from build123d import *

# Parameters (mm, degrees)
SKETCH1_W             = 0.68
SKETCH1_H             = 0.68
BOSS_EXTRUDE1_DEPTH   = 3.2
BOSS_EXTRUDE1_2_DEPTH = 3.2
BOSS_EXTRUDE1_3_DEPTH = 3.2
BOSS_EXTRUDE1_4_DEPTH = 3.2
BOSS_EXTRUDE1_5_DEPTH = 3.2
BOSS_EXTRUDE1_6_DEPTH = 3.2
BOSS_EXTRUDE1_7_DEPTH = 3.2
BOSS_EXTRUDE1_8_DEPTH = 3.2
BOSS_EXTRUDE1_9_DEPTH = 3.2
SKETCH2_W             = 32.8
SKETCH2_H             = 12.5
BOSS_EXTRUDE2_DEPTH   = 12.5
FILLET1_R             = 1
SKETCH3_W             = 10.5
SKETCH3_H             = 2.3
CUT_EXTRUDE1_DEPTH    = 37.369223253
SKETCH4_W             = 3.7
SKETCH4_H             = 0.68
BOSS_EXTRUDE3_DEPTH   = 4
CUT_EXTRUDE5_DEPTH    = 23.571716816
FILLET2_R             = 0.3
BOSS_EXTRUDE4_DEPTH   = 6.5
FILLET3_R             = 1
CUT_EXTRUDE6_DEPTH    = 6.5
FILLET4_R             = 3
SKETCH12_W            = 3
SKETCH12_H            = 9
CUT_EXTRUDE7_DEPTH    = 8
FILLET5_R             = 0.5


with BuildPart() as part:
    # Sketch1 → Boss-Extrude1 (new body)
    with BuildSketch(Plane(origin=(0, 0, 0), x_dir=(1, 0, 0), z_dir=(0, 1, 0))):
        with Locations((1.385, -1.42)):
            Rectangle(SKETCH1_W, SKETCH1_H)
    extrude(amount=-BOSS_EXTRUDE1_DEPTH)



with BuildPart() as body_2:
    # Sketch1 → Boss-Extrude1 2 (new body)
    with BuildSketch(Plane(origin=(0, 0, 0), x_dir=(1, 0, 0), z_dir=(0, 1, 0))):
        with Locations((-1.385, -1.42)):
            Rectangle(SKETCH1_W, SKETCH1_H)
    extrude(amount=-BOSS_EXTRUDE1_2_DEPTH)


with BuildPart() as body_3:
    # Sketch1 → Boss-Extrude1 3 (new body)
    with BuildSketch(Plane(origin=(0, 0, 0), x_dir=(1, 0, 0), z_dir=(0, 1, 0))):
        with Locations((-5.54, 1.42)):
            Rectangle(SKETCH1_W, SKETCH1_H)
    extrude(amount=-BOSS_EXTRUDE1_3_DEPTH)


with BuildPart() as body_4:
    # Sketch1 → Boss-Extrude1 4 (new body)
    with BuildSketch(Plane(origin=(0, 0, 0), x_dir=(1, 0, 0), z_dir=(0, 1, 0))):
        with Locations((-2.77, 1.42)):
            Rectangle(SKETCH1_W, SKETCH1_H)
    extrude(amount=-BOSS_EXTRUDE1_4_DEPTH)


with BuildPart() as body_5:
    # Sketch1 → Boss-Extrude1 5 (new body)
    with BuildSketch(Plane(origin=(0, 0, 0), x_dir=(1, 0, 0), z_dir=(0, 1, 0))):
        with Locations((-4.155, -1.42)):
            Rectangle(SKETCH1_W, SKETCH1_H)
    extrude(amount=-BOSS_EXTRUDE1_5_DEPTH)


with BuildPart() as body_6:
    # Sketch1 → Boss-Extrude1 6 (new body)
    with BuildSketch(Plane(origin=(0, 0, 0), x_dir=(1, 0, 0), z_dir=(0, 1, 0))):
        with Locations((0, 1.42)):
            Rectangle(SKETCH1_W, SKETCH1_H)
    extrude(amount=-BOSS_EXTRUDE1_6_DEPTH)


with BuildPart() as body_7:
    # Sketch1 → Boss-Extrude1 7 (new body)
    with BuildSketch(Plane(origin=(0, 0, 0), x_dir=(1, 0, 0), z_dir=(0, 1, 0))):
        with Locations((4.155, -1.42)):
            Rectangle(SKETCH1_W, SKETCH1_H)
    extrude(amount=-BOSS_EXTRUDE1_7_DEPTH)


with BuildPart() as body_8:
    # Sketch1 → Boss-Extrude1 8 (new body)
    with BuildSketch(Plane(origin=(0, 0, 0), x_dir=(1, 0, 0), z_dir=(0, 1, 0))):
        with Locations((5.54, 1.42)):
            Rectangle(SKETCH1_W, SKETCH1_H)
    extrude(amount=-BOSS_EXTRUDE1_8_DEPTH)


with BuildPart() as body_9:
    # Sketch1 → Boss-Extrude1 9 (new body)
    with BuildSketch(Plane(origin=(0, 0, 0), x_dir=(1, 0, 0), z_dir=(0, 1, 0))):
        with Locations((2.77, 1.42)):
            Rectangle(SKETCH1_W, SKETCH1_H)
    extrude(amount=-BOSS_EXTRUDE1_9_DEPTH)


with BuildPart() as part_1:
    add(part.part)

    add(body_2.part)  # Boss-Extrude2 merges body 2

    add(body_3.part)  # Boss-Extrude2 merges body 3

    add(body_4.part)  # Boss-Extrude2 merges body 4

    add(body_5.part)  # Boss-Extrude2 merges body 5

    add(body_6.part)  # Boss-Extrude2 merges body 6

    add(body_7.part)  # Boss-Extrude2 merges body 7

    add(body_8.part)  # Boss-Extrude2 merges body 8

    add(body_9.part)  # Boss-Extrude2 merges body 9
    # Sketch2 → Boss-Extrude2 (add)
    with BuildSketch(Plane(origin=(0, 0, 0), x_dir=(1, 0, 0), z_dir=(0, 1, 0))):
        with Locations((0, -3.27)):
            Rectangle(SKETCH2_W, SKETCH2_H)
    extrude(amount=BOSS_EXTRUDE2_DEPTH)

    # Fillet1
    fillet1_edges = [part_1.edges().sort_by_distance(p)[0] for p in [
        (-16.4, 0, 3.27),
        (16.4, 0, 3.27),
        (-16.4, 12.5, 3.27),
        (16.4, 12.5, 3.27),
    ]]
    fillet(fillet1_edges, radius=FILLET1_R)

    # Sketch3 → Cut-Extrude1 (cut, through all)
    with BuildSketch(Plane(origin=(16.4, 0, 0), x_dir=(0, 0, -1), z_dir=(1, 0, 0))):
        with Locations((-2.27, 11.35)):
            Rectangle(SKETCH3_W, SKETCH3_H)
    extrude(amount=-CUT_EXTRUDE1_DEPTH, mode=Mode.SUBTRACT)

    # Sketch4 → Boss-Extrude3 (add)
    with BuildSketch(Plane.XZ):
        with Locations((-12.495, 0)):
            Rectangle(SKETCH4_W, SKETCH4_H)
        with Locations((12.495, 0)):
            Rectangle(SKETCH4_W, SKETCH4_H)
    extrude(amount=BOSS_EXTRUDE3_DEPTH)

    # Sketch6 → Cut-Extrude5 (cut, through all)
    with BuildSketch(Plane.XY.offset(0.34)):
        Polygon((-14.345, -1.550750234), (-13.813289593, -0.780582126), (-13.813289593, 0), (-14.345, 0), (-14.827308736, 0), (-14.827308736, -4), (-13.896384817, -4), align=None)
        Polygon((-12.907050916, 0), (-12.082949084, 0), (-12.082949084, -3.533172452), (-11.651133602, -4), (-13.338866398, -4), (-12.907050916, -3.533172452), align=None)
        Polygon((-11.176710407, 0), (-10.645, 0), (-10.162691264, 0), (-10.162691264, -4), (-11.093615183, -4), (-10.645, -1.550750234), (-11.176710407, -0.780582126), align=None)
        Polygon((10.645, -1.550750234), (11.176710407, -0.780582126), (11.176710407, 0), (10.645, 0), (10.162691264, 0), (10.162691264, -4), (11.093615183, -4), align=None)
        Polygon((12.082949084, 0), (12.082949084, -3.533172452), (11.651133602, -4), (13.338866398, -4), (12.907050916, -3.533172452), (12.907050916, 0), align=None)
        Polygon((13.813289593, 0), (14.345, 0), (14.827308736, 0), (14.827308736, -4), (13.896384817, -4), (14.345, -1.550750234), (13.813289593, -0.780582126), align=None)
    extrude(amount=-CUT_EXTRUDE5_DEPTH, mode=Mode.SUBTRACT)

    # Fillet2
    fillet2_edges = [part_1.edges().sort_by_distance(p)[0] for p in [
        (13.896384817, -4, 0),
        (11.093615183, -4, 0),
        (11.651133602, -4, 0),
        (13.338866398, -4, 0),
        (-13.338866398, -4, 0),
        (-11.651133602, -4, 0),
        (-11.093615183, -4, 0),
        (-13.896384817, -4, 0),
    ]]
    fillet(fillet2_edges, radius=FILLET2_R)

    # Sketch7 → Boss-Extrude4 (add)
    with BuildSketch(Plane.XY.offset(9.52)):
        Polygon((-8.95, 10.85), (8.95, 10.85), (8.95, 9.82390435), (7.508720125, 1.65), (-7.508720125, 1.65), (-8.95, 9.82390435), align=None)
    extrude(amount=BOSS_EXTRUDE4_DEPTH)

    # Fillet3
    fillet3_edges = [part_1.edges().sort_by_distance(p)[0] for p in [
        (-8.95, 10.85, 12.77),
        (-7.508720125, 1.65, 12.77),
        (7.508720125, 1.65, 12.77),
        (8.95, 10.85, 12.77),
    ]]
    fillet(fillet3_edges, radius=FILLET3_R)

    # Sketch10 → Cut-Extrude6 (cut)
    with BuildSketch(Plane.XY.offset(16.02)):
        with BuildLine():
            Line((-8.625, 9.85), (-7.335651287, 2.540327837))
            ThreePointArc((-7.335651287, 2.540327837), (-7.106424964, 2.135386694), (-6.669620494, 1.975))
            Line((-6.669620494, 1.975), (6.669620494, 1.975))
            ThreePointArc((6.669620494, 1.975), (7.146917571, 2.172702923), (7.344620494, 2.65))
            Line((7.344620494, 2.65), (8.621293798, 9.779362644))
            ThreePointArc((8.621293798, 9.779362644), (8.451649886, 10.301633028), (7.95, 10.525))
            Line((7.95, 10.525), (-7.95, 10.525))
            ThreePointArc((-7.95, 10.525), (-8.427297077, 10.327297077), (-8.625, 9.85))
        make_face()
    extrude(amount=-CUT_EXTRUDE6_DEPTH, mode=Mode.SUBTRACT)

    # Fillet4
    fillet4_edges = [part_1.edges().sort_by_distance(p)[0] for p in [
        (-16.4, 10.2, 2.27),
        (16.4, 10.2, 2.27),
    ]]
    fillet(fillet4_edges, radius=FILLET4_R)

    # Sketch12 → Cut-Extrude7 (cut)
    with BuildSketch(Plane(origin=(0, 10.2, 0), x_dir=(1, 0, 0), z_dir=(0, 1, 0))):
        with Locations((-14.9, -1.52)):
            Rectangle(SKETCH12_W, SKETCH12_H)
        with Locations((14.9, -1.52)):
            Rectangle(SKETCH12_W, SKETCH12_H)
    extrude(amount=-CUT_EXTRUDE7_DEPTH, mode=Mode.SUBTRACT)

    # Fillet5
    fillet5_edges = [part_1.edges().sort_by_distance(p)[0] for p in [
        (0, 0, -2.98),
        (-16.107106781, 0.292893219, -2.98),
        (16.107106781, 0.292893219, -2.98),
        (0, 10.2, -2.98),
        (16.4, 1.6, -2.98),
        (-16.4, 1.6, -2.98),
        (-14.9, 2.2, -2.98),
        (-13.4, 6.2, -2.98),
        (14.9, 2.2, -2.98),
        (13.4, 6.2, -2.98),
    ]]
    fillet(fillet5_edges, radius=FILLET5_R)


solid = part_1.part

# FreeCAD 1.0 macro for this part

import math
import FreeCAD as App
import Part
import Sketcher
from FreeCAD import Vector
Q = App.Units.Quantity


def edges_at(feature, points):
    """Names of the edges that pass closest to the given points."""
    edges = feature.Shape.Edges
    near = lambda p: min(range(len(edges)), key=lambda i: edges[i].distToShape(Part.Vertex(*p))[0])
    return sorted({f"Edge{near(p) + 1}" for p in points})

doc = App.newDocument("Part")
body = doc.addObject("PartDesign::Body", "Body")

# Sketch on XZ plane
sketch1 = body.newObject("Sketcher::SketchObject", "Sketch")
sketch1.AttachmentSupport = (doc.getObject("XZ_Plane"), [""])
sketch1.MapMode = "FlatFace"
sketch1.addGeometry(Part.LineSegment(Vector(1, 1.1, 0), Vector(1, 1.8, 0)), False)
sketch1.addGeometry(Part.LineSegment(Vector(1, 1.8, 0), Vector(1.7, 1.8, 0)), False)
sketch1.addGeometry(Part.LineSegment(Vector(1.7, 1.8, 0), Vector(1.7, 1.1, 0)), False)
sketch1.addGeometry(Part.LineSegment(Vector(1.7, 1.1, 0), Vector(1, 1.1, 0)), False)
sketch1.addConstraint(Sketcher.Constraint("Coincident", 0, 2, 1, 1))
sketch1.addConstraint(Sketcher.Constraint("Coincident", 1, 2, 2, 1))
sketch1.addConstraint(Sketcher.Constraint("Coincident", 2, 2, 3, 1))
sketch1.addConstraint(Sketcher.Constraint("Coincident", 3, 2, 0, 1))
sketch1.addConstraint(Sketcher.Constraint("Vertical", 0))
sketch1.addConstraint(Sketcher.Constraint("Horizontal", 1))
sketch1.addConstraint(Sketcher.Constraint("Vertical", 2))
sketch1.addConstraint(Sketcher.Constraint("Horizontal", 3))
sketch1.addConstraint(Sketcher.Constraint("Equal", 3, 0))
sketch1.addConstraint(Sketcher.Constraint("DistanceX", 1, 1, 1, 2, Q("0.68 mm")))
sketch1.addConstraint(Sketcher.Constraint("DistanceY", -1, 1, 0, 2, Q("1.76 mm")))
sketch1.addConstraint(Sketcher.Constraint("DistanceX", -1, 1, 0, 2, Q("1.045 mm")))
pad1 = body.newObject("PartDesign::Pad", "Pad")
pad1.Profile = sketch1
pad1.Length = 3.2
body2 = doc.addObject("PartDesign::Body", "Body001")

# Sketch on XZ plane
sketch2 = body2.newObject("Sketcher::SketchObject", "Sketch001")
sketch2.AttachmentSupport = (doc.getObject("XZ_Plane001"), [""])
sketch2.MapMode = "FlatFace"
sketch2.addGeometry(Part.LineSegment(Vector(-1.7, 1.1, 0), Vector(-1.7, 1.8, 0)), False)
sketch2.addGeometry(Part.LineSegment(Vector(-1.7, 1.8, 0), Vector(-1, 1.8, 0)), False)
sketch2.addGeometry(Part.LineSegment(Vector(-1, 1.8, 0), Vector(-1, 1.1, 0)), False)
sketch2.addGeometry(Part.LineSegment(Vector(-1, 1.1, 0), Vector(-1.7, 1.1, 0)), False)
sketch2.addConstraint(Sketcher.Constraint("Coincident", 0, 2, 1, 1))
sketch2.addConstraint(Sketcher.Constraint("Coincident", 1, 2, 2, 1))
sketch2.addConstraint(Sketcher.Constraint("Coincident", 2, 2, 3, 1))
sketch2.addConstraint(Sketcher.Constraint("Coincident", 3, 2, 0, 1))
sketch2.addConstraint(Sketcher.Constraint("Vertical", 0))
sketch2.addConstraint(Sketcher.Constraint("Horizontal", 1))
sketch2.addConstraint(Sketcher.Constraint("Vertical", 2))
sketch2.addConstraint(Sketcher.Constraint("Horizontal", 3))
sketch2.addConstraint(Sketcher.Constraint("Equal", 3, 0))
sketch2.addConstraint(Sketcher.Constraint("DistanceX", 1, 1, 1, 2, Q("0.68 mm")))
sketch2.addConstraint(Sketcher.Constraint("DistanceY", -1, 1, 0, 2, Q("1.76 mm")))
sketch2.addConstraint(Sketcher.Constraint("DistanceX", 0, 2, -1, 1, Q("1.725 mm")))
pad2 = body2.newObject("PartDesign::Pad", "Pad001")
pad2.Profile = sketch2
pad2.Length = 3.2
body3 = doc.addObject("PartDesign::Body", "Body002")

# Sketch on XZ plane
sketch3 = body3.newObject("Sketcher::SketchObject", "Sketch002")
sketch3.AttachmentSupport = (doc.getObject("XZ_Plane002"), [""])
sketch3.MapMode = "FlatFace"
sketch3.addGeometry(Part.LineSegment(Vector(-5.9, -1.8, 0), Vector(-5.9, -1.1, 0)), False)
sketch3.addGeometry(Part.LineSegment(Vector(-5.9, -1.1, 0), Vector(-5.2, -1.1, 0)), False)
sketch3.addGeometry(Part.LineSegment(Vector(-5.2, -1.1, 0), Vector(-5.2, -1.8, 0)), False)
sketch3.addGeometry(Part.LineSegment(Vector(-5.2, -1.8, 0), Vector(-5.9, -1.8, 0)), False)
sketch3.addConstraint(Sketcher.Constraint("Coincident", 0, 2, 1, 1))
sketch3.addConstraint(Sketcher.Constraint("Coincident", 1, 2, 2, 1))
sketch3.addConstraint(Sketcher.Constraint("Coincident", 2, 2, 3, 1))
sketch3.addConstraint(Sketcher.Constraint("Coincident", 3, 2, 0, 1))
sketch3.addConstraint(Sketcher.Constraint("Vertical", 0))
sketch3.addConstraint(Sketcher.Constraint("Horizontal", 1))
sketch3.addConstraint(Sketcher.Constraint("Vertical", 2))
sketch3.addConstraint(Sketcher.Constraint("Horizontal", 3))
sketch3.addConstraint(Sketcher.Constraint("Equal", 3, 0))
sketch3.addConstraint(Sketcher.Constraint("DistanceX", 1, 1, 1, 2, Q("0.68 mm")))
sketch3.addConstraint(Sketcher.Constraint("DistanceX", 1, 2, -1, 1, Q("5.2 mm")))
sketch3.addConstraint(Sketcher.Constraint("DistanceY", 0, 2, -1, 1, Q("1.08 mm")))
pad3 = body3.newObject("PartDesign::Pad", "Pad002")
pad3.Profile = sketch3
pad3.Length = 3.2
body4 = doc.addObject("PartDesign::Body", "Body003")

# Sketch on XZ plane
sketch4 = body4.newObject("Sketcher::SketchObject", "Sketch003")
sketch4.AttachmentSupport = (doc.getObject("XZ_Plane003"), [""])
sketch4.MapMode = "FlatFace"
sketch4.addGeometry(Part.LineSegment(Vector(-3.1, -1.8, 0), Vector(-3.1, -1.1, 0)), False)
sketch4.addGeometry(Part.LineSegment(Vector(-3.1, -1.1, 0), Vector(-2.4, -1.1, 0)), False)
sketch4.addGeometry(Part.LineSegment(Vector(-2.4, -1.1, 0), Vector(-2.4, -1.8, 0)), False)
sketch4.addGeometry(Part.LineSegment(Vector(-2.4, -1.8, 0), Vector(-3.1, -1.8, 0)), False)
sketch4.addConstraint(Sketcher.Constraint("Coincident", 0, 2, 1, 1))
sketch4.addConstraint(Sketcher.Constraint("Coincident", 1, 2, 2, 1))
sketch4.addConstraint(Sketcher.Constraint("Coincident", 2, 2, 3, 1))
sketch4.addConstraint(Sketcher.Constraint("Coincident", 3, 2, 0, 1))
sketch4.addConstraint(Sketcher.Constraint("Vertical", 0))
sketch4.addConstraint(Sketcher.Constraint("Horizontal", 1))
sketch4.addConstraint(Sketcher.Constraint("Vertical", 2))
sketch4.addConstraint(Sketcher.Constraint("Horizontal", 3))
sketch4.addConstraint(Sketcher.Constraint("Equal", 3, 0))
sketch4.addConstraint(Sketcher.Constraint("DistanceX", 1, 1, 1, 2, Q("0.68 mm")))
sketch4.addConstraint(Sketcher.Constraint("DistanceX", 0, 2, -1, 1, Q("3.11 mm")))
sketch4.addConstraint(Sketcher.Constraint("DistanceY", 0, 2, -1, 1, Q("1.08 mm")))
pad4 = body4.newObject("PartDesign::Pad", "Pad003")
pad4.Profile = sketch4
pad4.Length = 3.2
body5 = doc.addObject("PartDesign::Body", "Body004")

# Sketch on XZ plane
sketch5 = body5.newObject("Sketcher::SketchObject", "Sketch004")
sketch5.AttachmentSupport = (doc.getObject("XZ_Plane004"), [""])
sketch5.MapMode = "FlatFace"
sketch5.addGeometry(Part.LineSegment(Vector(-4.5, 1.1, 0), Vector(-4.5, 1.8, 0)), False)
sketch5.addGeometry(Part.LineSegment(Vector(-4.5, 1.8, 0), Vector(-3.8, 1.8, 0)), False)
sketch5.addGeometry(Part.LineSegment(Vector(-3.8, 1.8, 0), Vector(-3.8, 1.1, 0)), False)
sketch5.addGeometry(Part.LineSegment(Vector(-3.8, 1.1, 0), Vector(-4.5, 1.1, 0)), False)
sketch5.addConstraint(Sketcher.Constraint("Coincident", 0, 2, 1, 1))
sketch5.addConstraint(Sketcher.Constraint("Coincident", 1, 2, 2, 1))
sketch5.addConstraint(Sketcher.Constraint("Coincident", 2, 2, 3, 1))
sketch5.addConstraint(Sketcher.Constraint("Coincident", 3, 2, 0, 1))
sketch5.addConstraint(Sketcher.Constraint("Vertical", 0))
sketch5.addConstraint(Sketcher.Constraint("Horizontal", 1))
sketch5.addConstraint(Sketcher.Constraint("Vertical", 2))
sketch5.addConstraint(Sketcher.Constraint("Horizontal", 3))
sketch5.addConstraint(Sketcher.Constraint("Equal", 3, 0))
sketch5.addConstraint(Sketcher.Constraint("DistanceX", 1, 1, 1, 2, Q("0.68 mm")))
sketch5.addConstraint(Sketcher.Constraint("DistanceY", -1, 1, 0, 2, Q("1.76 mm")))
sketch5.addConstraint(Sketcher.Constraint("DistanceX", 0, 2, -1, 1, Q("4.495 mm")))
pad5 = body5.newObject("PartDesign::Pad", "Pad004")
pad5.Profile = sketch5
pad5.Length = 3.2
body6 = doc.addObject("PartDesign::Body", "Body005")

# Sketch on XZ plane
sketch6 = body6.newObject("Sketcher::SketchObject", "Sketch005")
sketch6.AttachmentSupport = (doc.getObject("XZ_Plane005"), [""])
sketch6.MapMode = "FlatFace"
sketch6.addGeometry(Part.LineSegment(Vector(-0.3, -1.8, 0), Vector(-0.3, -1.1, 0)), False)
sketch6.addGeometry(Part.LineSegment(Vector(-0.3, -1.1, 0), Vector(0.3, -1.1, 0)), False)
sketch6.addGeometry(Part.LineSegment(Vector(0.3, -1.1, 0), Vector(0.3, -1.8, 0)), False)
sketch6.addGeometry(Part.LineSegment(Vector(0.3, -1.8, 0), Vector(-0.3, -1.8, 0)), False)
sketch6.addConstraint(Sketcher.Constraint("Coincident", 0, 2, 1, 1))
sketch6.addConstraint(Sketcher.Constraint("Coincident", 1, 2, 2, 1))
sketch6.addConstraint(Sketcher.Constraint("Coincident", 2, 2, 3, 1))
sketch6.addConstraint(Sketcher.Constraint("Coincident", 3, 2, 0, 1))
sketch6.addConstraint(Sketcher.Constraint("Vertical", 0))
sketch6.addConstraint(Sketcher.Constraint("Horizontal", 1))
sketch6.addConstraint(Sketcher.Constraint("Vertical", 2))
sketch6.addConstraint(Sketcher.Constraint("Horizontal", 3))
sketch6.addConstraint(Sketcher.Constraint("Equal", 3, 0))
sketch6.addConstraint(Sketcher.Constraint("DistanceX", 1, 1, 1, 2, Q("0.68 mm")))
sketch6.addConstraint(Sketcher.Constraint("DistanceX", 0, 2, -1, 1, Q("0.34 mm")))
sketch6.addConstraint(Sketcher.Constraint("DistanceY", 0, 2, -1, 1, Q("1.08 mm")))
pad6 = body6.newObject("PartDesign::Pad", "Pad005")
pad6.Profile = sketch6
pad6.Length = 3.2
body7 = doc.addObject("PartDesign::Body", "Body006")

# Sketch on XZ plane
sketch7 = body7.newObject("Sketcher::SketchObject", "Sketch006")
sketch7.AttachmentSupport = (doc.getObject("XZ_Plane006"), [""])
sketch7.MapMode = "FlatFace"
sketch7.addGeometry(Part.LineSegment(Vector(3.8, 1.1, 0), Vector(3.8, 1.8, 0)), False)
sketch7.addGeometry(Part.LineSegment(Vector(3.8, 1.8, 0), Vector(4.5, 1.8, 0)), False)
sketch7.addGeometry(Part.LineSegment(Vector(4.5, 1.8, 0), Vector(4.5, 1.1, 0)), False)
sketch7.addGeometry(Part.LineSegment(Vector(4.5, 1.1, 0), Vector(3.8, 1.1, 0)), False)
sketch7.addConstraint(Sketcher.Constraint("Coincident", 0, 2, 1, 1))
sketch7.addConstraint(Sketcher.Constraint("Coincident", 1, 2, 2, 1))
sketch7.addConstraint(Sketcher.Constraint("Coincident", 2, 2, 3, 1))
sketch7.addConstraint(Sketcher.Constraint("Coincident", 3, 2, 0, 1))
sketch7.addConstraint(Sketcher.Constraint("Vertical", 0))
sketch7.addConstraint(Sketcher.Constraint("Horizontal", 1))
sketch7.addConstraint(Sketcher.Constraint("Vertical", 2))
sketch7.addConstraint(Sketcher.Constraint("Horizontal", 3))
sketch7.addConstraint(Sketcher.Constraint("Equal", 3, 0))
sketch7.addConstraint(Sketcher.Constraint("DistanceX", 1, 1, 1, 2, Q("0.68 mm")))
sketch7.addConstraint(Sketcher.Constraint("DistanceY", -1, 1, 0, 2, Q("1.76 mm")))
sketch7.addConstraint(Sketcher.Constraint("DistanceX", -1, 1, 0, 2, Q("3.815 mm")))
pad7 = body7.newObject("PartDesign::Pad", "Pad006")
pad7.Profile = sketch7
pad7.Length = 3.2
body8 = doc.addObject("PartDesign::Body", "Body007")

# Sketch on XZ plane
sketch8 = body8.newObject("Sketcher::SketchObject", "Sketch007")
sketch8.AttachmentSupport = (doc.getObject("XZ_Plane007"), [""])
sketch8.MapMode = "FlatFace"
sketch8.addGeometry(Part.LineSegment(Vector(5.2, -1.8, 0), Vector(5.2, -1.1, 0)), False)
sketch8.addGeometry(Part.LineSegment(Vector(5.2, -1.1, 0), Vector(5.9, -1.1, 0)), False)
sketch8.addGeometry(Part.LineSegment(Vector(5.9, -1.1, 0), Vector(5.9, -1.8, 0)), False)
sketch8.addGeometry(Part.LineSegment(Vector(5.9, -1.8, 0), Vector(5.2, -1.8, 0)), False)
sketch8.addConstraint(Sketcher.Constraint("Coincident", 0, 2, 1, 1))
sketch8.addConstraint(Sketcher.Constraint("Coincident", 1, 2, 2, 1))
sketch8.addConstraint(Sketcher.Constraint("Coincident", 2, 2, 3, 1))
sketch8.addConstraint(Sketcher.Constraint("Coincident", 3, 2, 0, 1))
sketch8.addConstraint(Sketcher.Constraint("Vertical", 0))
sketch8.addConstraint(Sketcher.Constraint("Horizontal", 1))
sketch8.addConstraint(Sketcher.Constraint("Vertical", 2))
sketch8.addConstraint(Sketcher.Constraint("Horizontal", 3))
sketch8.addConstraint(Sketcher.Constraint("Equal", 3, 0))
sketch8.addConstraint(Sketcher.Constraint("DistanceX", 1, 1, 1, 2, Q("0.68 mm")))
sketch8.addConstraint(Sketcher.Constraint("DistanceX", -1, 1, 0, 2, Q("5.2 mm")))
sketch8.addConstraint(Sketcher.Constraint("DistanceY", 0, 2, -1, 1, Q("1.08 mm")))
pad8 = body8.newObject("PartDesign::Pad", "Pad007")
pad8.Profile = sketch8
pad8.Length = 3.2
body9 = doc.addObject("PartDesign::Body", "Body008")

# Sketch on XZ plane
sketch9 = body9.newObject("Sketcher::SketchObject", "Sketch008")
sketch9.AttachmentSupport = (doc.getObject("XZ_Plane008"), [""])
sketch9.MapMode = "FlatFace"
sketch9.addGeometry(Part.LineSegment(Vector(2.4, -1.8, 0), Vector(2.4, -1.1, 0)), False)
sketch9.addGeometry(Part.LineSegment(Vector(2.4, -1.1, 0), Vector(3.1, -1.1, 0)), False)
sketch9.addGeometry(Part.LineSegment(Vector(3.1, -1.1, 0), Vector(3.1, -1.8, 0)), False)
sketch9.addGeometry(Part.LineSegment(Vector(3.1, -1.8, 0), Vector(2.4, -1.8, 0)), False)
sketch9.addConstraint(Sketcher.Constraint("Coincident", 0, 2, 1, 1))
sketch9.addConstraint(Sketcher.Constraint("Coincident", 1, 2, 2, 1))
sketch9.addConstraint(Sketcher.Constraint("Coincident", 2, 2, 3, 1))
sketch9.addConstraint(Sketcher.Constraint("Coincident", 3, 2, 0, 1))
sketch9.addConstraint(Sketcher.Constraint("Vertical", 0))
sketch9.addConstraint(Sketcher.Constraint("Horizontal", 1))
sketch9.addConstraint(Sketcher.Constraint("Vertical", 2))
sketch9.addConstraint(Sketcher.Constraint("Horizontal", 3))
sketch9.addConstraint(Sketcher.Constraint("Equal", 3, 0))
sketch9.addConstraint(Sketcher.Constraint("DistanceX", 1, 1, 1, 2, Q("0.68 mm")))
sketch9.addConstraint(Sketcher.Constraint("DistanceX", -1, 1, 0, 2, Q("2.43 mm")))
sketch9.addConstraint(Sketcher.Constraint("DistanceY", 0, 2, -1, 1, Q("1.08 mm")))
pad9 = body9.newObject("PartDesign::Pad", "Pad008")
pad9.Profile = sketch9
pad9.Length = 3.2
body.AllowCompound = True
doc.recompute()

boolean = body.newObject("PartDesign::Boolean", "Boolean")
boolean.Type = "Fuse"
boolean.addObjects([body2])
doc.recompute()

boolean2 = body.newObject("PartDesign::Boolean", "Boolean001")
boolean2.Type = "Fuse"
boolean2.addObjects([body3])
doc.recompute()

boolean3 = body.newObject("PartDesign::Boolean", "Boolean002")
boolean3.Type = "Fuse"
boolean3.addObjects([body4])
doc.recompute()

boolean4 = body.newObject("PartDesign::Boolean", "Boolean003")
boolean4.Type = "Fuse"
boolean4.addObjects([body5])
doc.recompute()

boolean5 = body.newObject("PartDesign::Boolean", "Boolean004")
boolean5.Type = "Fuse"
boolean5.addObjects([body6])
doc.recompute()

boolean6 = body.newObject("PartDesign::Boolean", "Boolean005")
boolean6.Type = "Fuse"
boolean6.addObjects([body7])
doc.recompute()

boolean7 = body.newObject("PartDesign::Boolean", "Boolean006")
boolean7.Type = "Fuse"
boolean7.addObjects([body8])
doc.recompute()

boolean8 = body.newObject("PartDesign::Boolean", "Boolean007")
boolean8.Type = "Fuse"
boolean8.addObjects([body9])

# Sketch on XZ plane
sketch10 = body.newObject("Sketcher::SketchObject", "Sketch009")
sketch10.AttachmentSupport = (doc.getObject("XZ_Plane"), [""])
sketch10.MapMode = "FlatFace"
sketch10.addGeometry(Part.LineSegment(Vector(-16, -3, 0), Vector(-16, 10, 0)), False)
sketch10.addGeometry(Part.LineSegment(Vector(-16, 10, 0), Vector(16, 10, 0)), False)
sketch10.addGeometry(Part.LineSegment(Vector(16, 10, 0), Vector(16, -3, 0)), False)
sketch10.addGeometry(Part.LineSegment(Vector(16, -3, 0), Vector(-16, -3, 0)), False)
sketch10.addConstraint(Sketcher.Constraint("Coincident", 0, 2, 1, 1))
sketch10.addConstraint(Sketcher.Constraint("Coincident", 1, 2, 2, 1))
sketch10.addConstraint(Sketcher.Constraint("Coincident", 2, 2, 3, 1))
sketch10.addConstraint(Sketcher.Constraint("Coincident", 3, 2, 0, 1))
sketch10.addConstraint(Sketcher.Constraint("Vertical", 0))
sketch10.addConstraint(Sketcher.Constraint("Horizontal", 1))
sketch10.addConstraint(Sketcher.Constraint("Vertical", 2))
sketch10.addConstraint(Sketcher.Constraint("Horizontal", 3))
sketch10.addConstraint(Sketcher.Constraint("DistanceX", 1, 1, 1, 2, Q("32.8 mm")))
sketch10.addConstraint(Sketcher.Constraint("DistanceY", 0, 1, 0, 2, Q("12.5 mm")))
sketch10.addConstraint(Sketcher.Constraint("DistanceX", 0, 2, -1, 1, Q("16.4 mm")))
sketch10.addConstraint(Sketcher.Constraint("DistanceY", -1, 1, 0, 2, Q("9.52 mm")))
pad10 = body.newObject("PartDesign::Pad", "Pad009")
pad10.Profile = sketch10
pad10.Length = 12.5
pad10.Reversed = True
doc.recompute()

fillet = body.newObject("PartDesign::Fillet", "Fillet")
fillet.Base = (pad10, edges_at(pad10, [
    (-16.4, 0, 3.27),
    (16.4, 0, 3.27),
    (-16.4, 12.5, 3.27),
    (16.4, 12.5, 3.27),
]))
fillet.Radius = 1

# Sketch on YZ plane
sketch11 = body.newObject("Sketcher::SketchObject", "Sketch010")
sketch11.AttachmentSupport = (doc.getObject("YZ_Plane"), [""])
sketch11.MapMode = "FlatFace"
sketch11.AttachmentOffset = App.Placement(Vector(0, 0, 16.4), App.Rotation())
sketch11.addGeometry(Part.LineSegment(Vector(12.5, 7.5, 0), Vector(10.2, 7.5, 0)), False)
sketch11.addGeometry(Part.LineSegment(Vector(10.2, 7.5, 0), Vector(10.2, -3, 0)), False)
sketch11.addGeometry(Part.LineSegment(Vector(10.2, -3, 0), Vector(12.5, -3, 0)), False)
sketch11.addGeometry(Part.LineSegment(Vector(12.5, -3, 0), Vector(12.5, 7.5, 0)), False)
sketch11.addConstraint(Sketcher.Constraint("Coincident", 0, 2, 1, 1))
sketch11.addConstraint(Sketcher.Constraint("Coincident", 1, 2, 2, 1))
sketch11.addConstraint(Sketcher.Constraint("Coincident", 2, 2, 3, 1))
sketch11.addConstraint(Sketcher.Constraint("Coincident", 3, 2, 0, 1))
sketch11.addConstraint(Sketcher.Constraint("Horizontal", 0))
sketch11.addConstraint(Sketcher.Constraint("Vertical", 1))
sketch11.addConstraint(Sketcher.Constraint("Horizontal", 2))
sketch11.addConstraint(Sketcher.Constraint("Vertical", 3))
sketch11.addConstraint(Sketcher.Constraint("DistanceX", 0, 2, 0, 1, Q("2.3 mm")))
sketch11.addConstraint(Sketcher.Constraint("DistanceY", 1, 2, 1, 1, Q("10.5 mm")))
sketch11.addConstraint(Sketcher.Constraint("DistanceX", -1, 1, 0, 2, Q("10.2 mm")))
sketch11.addConstraint(Sketcher.Constraint("DistanceY", -1, 1, 0, 2, Q("7.52 mm")))
pocket1 = body.newObject("PartDesign::Pocket", "Pocket")
pocket1.Profile = sketch11
pocket1.Type = "ThroughAll"

# Sketch on XZ plane
sketch12 = body.newObject("Sketcher::SketchObject", "Sketch011")
sketch12.AttachmentSupport = (doc.getObject("XZ_Plane"), [""])
sketch12.MapMode = "FlatFace"
sketch12.addGeometry(Part.LineSegment(Vector(-14.3, 0.3, 0), Vector(-14.3, -0.3, 0)), False)
sketch12.addGeometry(Part.LineSegment(Vector(-14.3, -0.3, 0), Vector(-10.6, -0.3, 0)), False)
sketch12.addGeometry(Part.LineSegment(Vector(-10.6, -0.3, 0), Vector(-10.6, 0.3, 0)), False)
sketch12.addGeometry(Part.LineSegment(Vector(-10.6, 0.3, 0), Vector(-14.3, 0.3, 0)), False)
sketch12.addGeometry(Part.LineSegment(Vector(10.6, 0.3, 0), Vector(10.6, -0.3, 0)), False)
sketch12.addGeometry(Part.LineSegment(Vector(10.6, -0.3, 0), Vector(14.3, -0.3, 0)), False)
sketch12.addGeometry(Part.LineSegment(Vector(14.3, -0.3, 0), Vector(14.3, 0.3, 0)), False)
sketch12.addGeometry(Part.LineSegment(Vector(14.3, 0.3, 0), Vector(10.6, 0.3, 0)), False)
sketch12.addConstraint(Sketcher.Constraint("Coincident", 0, 2, 1, 1))
sketch12.addConstraint(Sketcher.Constraint("Coincident", 1, 2, 2, 1))
sketch12.addConstraint(Sketcher.Constraint("Coincident", 2, 2, 3, 1))
sketch12.addConstraint(Sketcher.Constraint("Coincident", 3, 2, 0, 1))
sketch12.addConstraint(Sketcher.Constraint("Coincident", 4, 2, 5, 1))
sketch12.addConstraint(Sketcher.Constraint("Coincident", 5, 2, 6, 1))
sketch12.addConstraint(Sketcher.Constraint("Coincident", 6, 2, 7, 1))
sketch12.addConstraint(Sketcher.Constraint("Coincident", 7, 2, 4, 1))
sketch12.addConstraint(Sketcher.Constraint("Vertical", 0))
sketch12.addConstraint(Sketcher.Constraint("Horizontal", 1))
sketch12.addConstraint(Sketcher.Constraint("Vertical", 2))
sketch12.addConstraint(Sketcher.Constraint("Horizontal", 3))
sketch12.addConstraint(Sketcher.Constraint("Vertical", 4))
sketch12.addConstraint(Sketcher.Constraint("Horizontal", 5))
sketch12.addConstraint(Sketcher.Constraint("Vertical", 6))
sketch12.addConstraint(Sketcher.Constraint("Horizontal", 7))
sketch12.addConstraint(Sketcher.Constraint("Symmetric", 2, 2, 4, 2, -1, 1))
sketch12.addConstraint(Sketcher.Constraint("Symmetric", 0, 2, 6, 2, -1, 1))
sketch12.addConstraint(Sketcher.Constraint("Horizontal", 1, 2, 4, 2))
sketch12.addConstraint(Sketcher.Constraint("DistanceX", 1, 1, 1, 2, Q("3.7 mm")))
sketch12.addConstraint(Sketcher.Constraint("DistanceY", 0, 2, 0, 1, Q("0.68 mm")))
sketch12.addConstraint(Sketcher.Constraint("DistanceX", 1, 2, 4, 2, Q("21.29 mm")))
pad11 = body.newObject("PartDesign::Pad", "Pad010")
pad11.Profile = sketch12
pad11.Length = 4

# Sketch on XY plane
sketch13 = body.newObject("Sketcher::SketchObject", "Sketch012")
sketch13.AttachmentSupport = (doc.getObject("XY_Plane"), [""])
sketch13.MapMode = "FlatFace"
sketch13.AttachmentOffset = App.Placement(Vector(0, 0, 0.34), App.Rotation())
sketch13.addGeometry(Part.LineSegment(Vector(-14.3, -1.6, 0), Vector(-13.8, -0.8, 0)), False)
sketch13.addGeometry(Part.LineSegment(Vector(-13.8, -0.8, 0), Vector(-13.8, 0, 0)), False)
sketch13.addGeometry(Part.LineSegment(Vector(-13.8, 0, 0), Vector(-14.8, 0, 0)), False)
sketch13.addGeometry(Part.LineSegment(Vector(-14.8, 0, 0), Vector(-14.8, -4, 0)), False)
sketch13.addGeometry(Part.LineSegment(Vector(-14.8, -4, 0), Vector(-13.9, -4, 0)), False)
sketch13.addGeometry(Part.LineSegment(Vector(-13.9, -4, 0), Vector(-14.3, -1.6, 0)), False)
sketch13.addGeometry(Part.LineSegment(Vector(-12.1, 0, 0), Vector(-12.9, 0, 0)), False)
sketch13.addGeometry(Part.LineSegment(Vector(-12.9, 0, 0), Vector(-12.9, -3.5, 0)), False)
sketch13.addGeometry(Part.LineSegment(Vector(-12.9, -3.5, 0), Vector(-13.3, -4, 0)), False)
sketch13.addGeometry(Part.LineSegment(Vector(-13.3, -4, 0), Vector(-11.7, -4, 0)), False)
sketch13.addGeometry(Part.LineSegment(Vector(-11.7, -4, 0), Vector(-12.1, -3.5, 0)), False)
sketch13.addGeometry(Part.LineSegment(Vector(-12.1, -3.5, 0), Vector(-12.1, 0, 0)), False)
sketch13.addGeometry(Part.LineSegment(Vector(-10.2, 0, 0), Vector(-11.2, 0, 0)), False)
sketch13.addGeometry(Part.LineSegment(Vector(-11.2, 0, 0), Vector(-11.2, -0.8, 0)), False)
sketch13.addGeometry(Part.LineSegment(Vector(-11.2, -0.8, 0), Vector(-10.6, -1.6, 0)), False)
sketch13.addGeometry(Part.LineSegment(Vector(-10.6, -1.6, 0), Vector(-11.1, -4, 0)), False)
sketch13.addGeometry(Part.LineSegment(Vector(-11.1, -4, 0), Vector(-10.2, -4, 0)), False)
sketch13.addGeometry(Part.LineSegment(Vector(-10.2, -4, 0), Vector(-10.2, 0, 0)), False)
sketch13.addGeometry(Part.LineSegment(Vector(10.6, -1.6, 0), Vector(11.2, -0.8, 0)), False)
sketch13.addGeometry(Part.LineSegment(Vector(11.2, -0.8, 0), Vector(11.2, 0, 0)), False)
sketch13.addGeometry(Part.LineSegment(Vector(11.2, 0, 0), Vector(10.2, 0, 0)), False)
sketch13.addGeometry(Part.LineSegment(Vector(10.2, 0, 0), Vector(10.2, -4, 0)), False)
sketch13.addGeometry(Part.LineSegment(Vector(10.2, -4, 0), Vector(11.1, -4, 0)), False)
sketch13.addGeometry(Part.LineSegment(Vector(11.1, -4, 0), Vector(10.6, -1.6, 0)), False)
sketch13.addGeometry(Part.LineSegment(Vector(12.1, 0, 0), Vector(12.1, -3.5, 0)), False)
sketch13.addGeometry(Part.LineSegment(Vector(12.1, -3.5, 0), Vector(11.7, -4, 0)), False)
sketch13.addGeometry(Part.LineSegment(Vector(11.7, -4, 0), Vector(13.3, -4, 0)), False)
sketch13.addGeometry(Part.LineSegment(Vector(13.3, -4, 0), Vector(12.9, -3.5, 0)), False)
sketch13.addGeometry(Part.LineSegment(Vector(12.9, -3.5, 0), Vector(12.9, 0, 0)), False)
sketch13.addGeometry(Part.LineSegment(Vector(12.9, 0, 0), Vector(12.1, 0, 0)), False)
sketch13.addGeometry(Part.LineSegment(Vector(14.8, 0, 0), Vector(13.8, 0, 0)), False)
sketch13.addGeometry(Part.LineSegment(Vector(13.8, 0, 0), Vector(13.8, -0.8, 0)), False)
sketch13.addGeometry(Part.LineSegment(Vector(13.8, -0.8, 0), Vector(14.3, -1.6, 0)), False)
sketch13.addGeometry(Part.LineSegment(Vector(14.3, -1.6, 0), Vector(13.9, -4, 0)), False)
sketch13.addGeometry(Part.LineSegment(Vector(13.9, -4, 0), Vector(14.8, -4, 0)), False)
sketch13.addGeometry(Part.LineSegment(Vector(14.8, -4, 0), Vector(14.8, 0, 0)), False)
sketch13.addConstraint(Sketcher.Constraint("Coincident", 0, 2, 1, 1))
sketch13.addConstraint(Sketcher.Constraint("Coincident", 1, 2, 2, 1))
sketch13.addConstraint(Sketcher.Constraint("Coincident", 2, 2, 3, 1))
sketch13.addConstraint(Sketcher.Constraint("Coincident", 3, 2, 4, 1))
sketch13.addConstraint(Sketcher.Constraint("Coincident", 4, 2, 5, 1))
sketch13.addConstraint(Sketcher.Constraint("Coincident", 5, 2, 0, 1))
sketch13.addConstraint(Sketcher.Constraint("Coincident", 6, 2, 7, 1))
sketch13.addConstraint(Sketcher.Constraint("Coincident", 7, 2, 8, 1))
sketch13.addConstraint(Sketcher.Constraint("Coincident", 8, 2, 9, 1))
sketch13.addConstraint(Sketcher.Constraint("Coincident", 9, 2, 10, 1))
sketch13.addConstraint(Sketcher.Constraint("Coincident", 10, 2, 11, 1))
sketch13.addConstraint(Sketcher.Constraint("Coincident", 11, 2, 6, 1))
sketch13.addConstraint(Sketcher.Constraint("Coincident", 12, 2, 13, 1))
sketch13.addConstraint(Sketcher.Constraint("Coincident", 13, 2, 14, 1))
sketch13.addConstraint(Sketcher.Constraint("Coincident", 14, 2, 15, 1))
sketch13.addConstraint(Sketcher.Constraint("Coincident", 15, 2, 16, 1))
sketch13.addConstraint(Sketcher.Constraint("Coincident", 16, 2, 17, 1))
sketch13.addConstraint(Sketcher.Constraint("Coincident", 17, 2, 12, 1))
sketch13.addConstraint(Sketcher.Constraint("Coincident", 18, 2, 19, 1))
sketch13.addConstraint(Sketcher.Constraint("Coincident", 19, 2, 20, 1))
sketch13.addConstraint(Sketcher.Constraint("Coincident", 20, 2, 21, 1))
sketch13.addConstraint(Sketcher.Constraint("Coincident", 21, 2, 22, 1))
sketch13.addConstraint(Sketcher.Constraint("Coincident", 22, 2, 23, 1))
sketch13.addConstraint(Sketcher.Constraint("Coincident", 23, 2, 18, 1))
sketch13.addConstraint(Sketcher.Constraint("Coincident", 24, 2, 25, 1))
sketch13.addConstraint(Sketcher.Constraint("Coincident", 25, 2, 26, 1))
sketch13.addConstraint(Sketcher.Constraint("Coincident", 26, 2, 27, 1))
sketch13.addConstraint(Sketcher.Constraint("Coincident", 27, 2, 28, 1))
sketch13.addConstraint(Sketcher.Constraint("Coincident", 28, 2, 29, 1))
sketch13.addConstraint(Sketcher.Constraint("Coincident", 29, 2, 24, 1))
sketch13.addConstraint(Sketcher.Constraint("Coincident", 30, 2, 31, 1))
sketch13.addConstraint(Sketcher.Constraint("Coincident", 31, 2, 32, 1))
sketch13.addConstraint(Sketcher.Constraint("Coincident", 32, 2, 33, 1))
sketch13.addConstraint(Sketcher.Constraint("Coincident", 33, 2, 34, 1))
sketch13.addConstraint(Sketcher.Constraint("Coincident", 34, 2, 35, 1))
sketch13.addConstraint(Sketcher.Constraint("Coincident", 35, 2, 30, 1))
sketch13.addConstraint(Sketcher.Constraint("Vertical", 1))
sketch13.addConstraint(Sketcher.Constraint("Horizontal", 2))
sketch13.addConstraint(Sketcher.Constraint("Vertical", 3))
sketch13.addConstraint(Sketcher.Constraint("Horizontal", 4))
sketch13.addConstraint(Sketcher.Constraint("Horizontal", 6))
sketch13.addConstraint(Sketcher.Constraint("Vertical", 7))
sketch13.addConstraint(Sketcher.Constraint("Horizontal", 9))
sketch13.addConstraint(Sketcher.Constraint("Vertical", 11))
sketch13.addConstraint(Sketcher.Constraint("Horizontal", 12))
sketch13.addConstraint(Sketcher.Constraint("Vertical", 13))
sketch13.addConstraint(Sketcher.Constraint("Horizontal", 16))
sketch13.addConstraint(Sketcher.Constraint("Vertical", 17))
sketch13.addConstraint(Sketcher.Constraint("Vertical", 19))
sketch13.addConstraint(Sketcher.Constraint("Horizontal", 20))
sketch13.addConstraint(Sketcher.Constraint("Vertical", 21))
sketch13.addConstraint(Sketcher.Constraint("Horizontal", 22))
sketch13.addConstraint(Sketcher.Constraint("Vertical", 24))
sketch13.addConstraint(Sketcher.Constraint("Horizontal", 26))
sketch13.addConstraint(Sketcher.Constraint("Vertical", 28))
sketch13.addConstraint(Sketcher.Constraint("Horizontal", 29))
sketch13.addConstraint(Sketcher.Constraint("Horizontal", 30))
sketch13.addConstraint(Sketcher.Constraint("Vertical", 31))
sketch13.addConstraint(Sketcher.Constraint("Horizontal", 34))
sketch13.addConstraint(Sketcher.Constraint("Vertical", 35))
sketch13.addConstraint(Sketcher.Constraint("Symmetric", 12, 2, 19, 2, -1, 1))
sketch13.addConstraint(Sketcher.Constraint("Symmetric", 6, 2, 28, 2, -1, 1))
sketch13.addConstraint(Sketcher.Constraint("Symmetric", 1, 2, 30, 2, -1, 1))
sketch13.addConstraint(Sketcher.Constraint("Symmetric", 17, 2, 20, 2, -2))
sketch13.addConstraint(Sketcher.Constraint("Symmetric", 15, 2, 22, 2, -2))
sketch13.addConstraint(Sketcher.Constraint("Symmetric", 14, 2, 23, 2, -2))
sketch13.addConstraint(Sketcher.Constraint("Symmetric", 10, 2, 24, 2, -2))
sketch13.addConstraint(Sketcher.Constraint("Symmetric", 9, 2, 25, 2, -2))
sketch13.addConstraint(Sketcher.Constraint("Symmetric", 5, 2, 32, 2, -2))
sketch13.addConstraint(Sketcher.Constraint("Symmetric", 4, 2, 33, 2, -2))
sketch13.addConstraint(Sketcher.Constraint("Symmetric", 2, 2, 35, 2, -2))
sketch13.addConstraint(Sketcher.Constraint("PointOnObject", 6, 2, -1))
sketch13.addConstraint(Sketcher.Constraint("Parallel", 0, 18))
sketch13.addConstraint(Sketcher.Constraint("Parallel", 5, 23))
sketch13.addConstraint(Sketcher.Constraint("Parallel", 8, 25))
sketch13.addConstraint(Sketcher.Constraint("Parallel", 10, 27))
sketch13.addConstraint(Sketcher.Constraint("Parallel", 14, 32))
sketch13.addConstraint(Sketcher.Constraint("Horizontal", 4, 2, 8, 2))
sketch13.addConstraint(Sketcher.Constraint("Horizontal", 7, 2, 10, 2))
sketch13.addConstraint(Sketcher.Constraint("Horizontal", 0, 2, 13, 2))
sketch13.addConstraint(Sketcher.Constraint("Horizontal", 5, 2, 14, 2))
sketch13.addConstraint(Sketcher.Constraint("Horizontal", 9, 2, 15, 2))
sketch13.addConstraint(Sketcher.Constraint("Horizontal", 13, 2, 18, 2))
sketch13.addConstraint(Sketcher.Constraint("Horizontal", 24, 2, 27, 2))
sketch13.addConstraint(Sketcher.Constraint("Equal", 2, 12))
sketch13.addConstraint(Sketcher.Constraint("DistanceY", 3, 2, 3, 1, Q("4 mm")))
sketch13.addConstraint(Sketcher.Constraint("DistanceX", 6, 2, 6, 1, Q("0.824102 mm")))
sketch13.addConstraint(Sketcher.Constraint("DistanceX", 5, 2, -1, 1, Q("14.345 mm")))
sketch13.addConstraint(Sketcher.Constraint("DistanceX", 14, 2, -1, 1, Q("10.645 mm")))
sketch13.addConstraint(Sketcher.Constraint("DistanceX", 2, 2, 2, 1, Q("1.014019 mm")))
sketch13.addConstraint(Sketcher.Constraint("DistanceX", 17, 2, 18, 2, Q("21.339402 mm")))
sketch13.addConstraint(Sketcher.Constraint("Distance", 0, Q("0.935882 mm")))
sketch13.addConstraint(Sketcher.Constraint("Distance", 8, Q("0.635919 mm")))
sketch13.addConstraint(Sketcher.Constraint("DistanceX", 4, 1, 4, 2, Q("0.930924 mm")))
sketch13.addConstraint(Sketcher.Constraint("DistanceX", 9, 1, 9, 2, Q("1.687733 mm")))
sketch13.addConstraint(Sketcher.Constraint("DistanceY", 1, 1, 1, 2, Q("0.780582 mm")))
sketch13.addConstraint(Sketcher.Constraint("DistanceX", 6, 2, -1, 1, Q("12.907051 mm")))
pocket2 = body.newObject("PartDesign::Pocket", "Pocket001")
pocket2.Profile = sketch13
pocket2.Type = "ThroughAll"
doc.recompute()

fillet2 = body.newObject("PartDesign::Fillet", "Fillet001")
fillet2.Base = (pocket2, edges_at(pocket2, [
    (13.896, -4, 0),
    (11.094, -4, 0),
    (11.651, -4, 0),
    (13.339, -4, 0),
    (-13.339, -4, 0),
    (-11.651, -4, 0),
    (-11.094, -4, 0),
    (-13.896, -4, 0),
]))
fillet2.Radius = 0.3

# Sketch on XY plane
sketch14 = body.newObject("Sketcher::SketchObject", "Sketch013")
sketch14.AttachmentSupport = (doc.getObject("XY_Plane"), [""])
sketch14.MapMode = "FlatFace"
sketch14.AttachmentOffset = App.Placement(Vector(0, 0, 9.52), App.Rotation())
sketch14.addGeometry(Part.LineSegment(Vector(8.9, 10.8, 0), Vector(-8.9, 10.8, 0)), False)
sketch14.addGeometry(Part.LineSegment(Vector(-8.9, 10.8, 0), Vector(-8.9, 9.8, 0)), False)
sketch14.addGeometry(Part.LineSegment(Vector(-8.9, 9.8, 0), Vector(-7.5, 1.6, 0)), False)
sketch14.addGeometry(Part.LineSegment(Vector(-7.5, 1.6, 0), Vector(7.5, 1.6, 0)), False)
sketch14.addGeometry(Part.LineSegment(Vector(7.5, 1.6, 0), Vector(8.9, 9.8, 0)), False)
sketch14.addGeometry(Part.LineSegment(Vector(8.9, 9.8, 0), Vector(8.9, 10.8, 0)), False)
sketch14.addConstraint(Sketcher.Constraint("Coincident", 0, 2, 1, 1))
sketch14.addConstraint(Sketcher.Constraint("Coincident", 1, 2, 2, 1))
sketch14.addConstraint(Sketcher.Constraint("Coincident", 2, 2, 3, 1))
sketch14.addConstraint(Sketcher.Constraint("Coincident", 3, 2, 4, 1))
sketch14.addConstraint(Sketcher.Constraint("Coincident", 4, 2, 5, 1))
sketch14.addConstraint(Sketcher.Constraint("Coincident", 5, 2, 0, 1))
sketch14.addConstraint(Sketcher.Constraint("Horizontal", 0))
sketch14.addConstraint(Sketcher.Constraint("Vertical", 1))
sketch14.addConstraint(Sketcher.Constraint("Horizontal", 3))
sketch14.addConstraint(Sketcher.Constraint("Vertical", 5))
sketch14.addConstraint(Sketcher.Constraint("Symmetric", 1, 2, 4, 2, -2))
sketch14.addConstraint(Sketcher.Constraint("Equal", 2, 4))
sketch14.addConstraint(Sketcher.Constraint("Angle", 2, Q("-80 deg")))
sketch14.addConstraint(Sketcher.Constraint("DistanceX", 0, 2, 0, 1, Q("17.9 mm")))
sketch14.addConstraint(Sketcher.Constraint("Distance", 2, Q("8.3 mm")))
sketch14.addConstraint(Sketcher.Constraint("DistanceY", 2, 2, 0, 2, Q("9.2 mm")))
sketch14.addConstraint(Sketcher.Constraint("DistanceY", -1, 1, 0, 2, Q("10.85 mm")))
pad12 = body.newObject("PartDesign::Pad", "Pad011")
pad12.Profile = sketch14
pad12.Length = 6.5
doc.recompute()

fillet3 = body.newObject("PartDesign::Fillet", "Fillet002")
fillet3.Base = (pad12, edges_at(pad12, [
    (-8.95, 10.85, 12.77),
    (-7.509, 1.65, 12.77),
    (7.509, 1.65, 12.77),
    (8.95, 10.85, 12.77),
]))
fillet3.Radius = 1

# Sketch on XY plane
sketch15 = body.newObject("Sketcher::SketchObject", "Sketch014")
sketch15.AttachmentSupport = (doc.getObject("XY_Plane"), [""])
sketch15.MapMode = "FlatFace"
sketch15.AttachmentOffset = App.Placement(Vector(0, 0, 16.02), App.Rotation())
sketch15.addGeometry(Part.LineSegment(Vector(-8.6, 9.8, 0), Vector(-7.3, 2.5, 0)), False)
sketch15.addGeometry(Part.ArcOfCircle(Part.Circle(Vector(-6.7, 2.7, 0), Vector(0, 0, 1), 0.7), math.radians(-171), math.radians(-90)), False)
sketch15.addGeometry(Part.LineSegment(Vector(-6.7, 2, 0), Vector(6.7, 2, 0)), False)
sketch15.addGeometry(Part.ArcOfCircle(Part.Circle(Vector(6.7, 2.7, 0), Vector(0, 0, 1), 0.7), math.radians(-90), math.radians(0)), False)
sketch15.addGeometry(Part.LineSegment(Vector(7.3, 2.6, 0), Vector(8.6, 9.8, 0)), False)
sketch15.addGeometry(Part.ArcOfCircle(Part.Circle(Vector(8, 9.9, 0), Vector(0, 0, 1), 0.7), math.radians(-6), math.radians(90)), False)
sketch15.addGeometry(Part.LineSegment(Vector(8, 10.5, 0), Vector(-8, 10.5, 0)), False)
sketch15.addGeometry(Part.ArcOfCircle(Part.Circle(Vector(-7.9, 9.8, 0), Vector(0, 0, 1), 0.7), math.radians(90), math.radians(180)), False)
sketch15.addConstraint(Sketcher.Constraint("Coincident", 0, 2, 1, 1))
sketch15.addConstraint(Sketcher.Constraint("Tangent", 1, 2, 2, 1))
sketch15.addConstraint(Sketcher.Constraint("Tangent", 2, 2, 3, 1))
sketch15.addConstraint(Sketcher.Constraint("Coincident", 3, 2, 4, 1))
sketch15.addConstraint(Sketcher.Constraint("Coincident", 4, 2, 5, 1))
sketch15.addConstraint(Sketcher.Constraint("Tangent", 5, 2, 6, 1))
sketch15.addConstraint(Sketcher.Constraint("Tangent", 6, 2, 7, 1))
sketch15.addConstraint(Sketcher.Constraint("Coincident", 7, 2, 0, 1))
sketch15.addConstraint(Sketcher.Constraint("Horizontal", 2))
sketch15.addConstraint(Sketcher.Constraint("Horizontal", 6))
sketch15.addConstraint(Sketcher.Constraint("Equal", 1, 3))
sketch15.addConstraint(Sketcher.Constraint("Equal", 3, 5))
sketch15.addConstraint(Sketcher.Constraint("Equal", 5, 7))
sketch15.addConstraint(Sketcher.Constraint("Horizontal", 1, 3, 3, 2))
sketch15.addConstraint(Sketcher.Constraint("Horizontal", 5, 3, 7, 2))
sketch15.addConstraint(Sketcher.Constraint("DistanceX", 6, 2, 6, 1, Q("15.9 mm")))
sketch15.addConstraint(Sketcher.Constraint("Radius", 1, Q("0.675 mm")))
sketch15.addConstraint(Sketcher.Constraint("DistanceY", 3, 3, 5, 3, Q("7.2 mm")))
sketch15.addConstraint(Sketcher.Constraint("DistanceY", -1, 1, 1, 3, Q("2.65 mm")))
sketch15.addConstraint(Sketcher.Constraint("DistanceX", -1, 1, 5, 3, Q("7.95 mm")))
sketch15.addConstraint(Sketcher.Constraint("DistanceX", 2, 1, 2, 2, Q("13.339241 mm")))
sketch15.addConstraint(Sketcher.Constraint("Distance", 4, Q("7.242769 mm")))
sketch15.addConstraint(Sketcher.Constraint("DistanceX", 1, 3, -1, 1, Q("6.66962 mm")))
sketch15.addConstraint(Sketcher.Constraint("DistanceX", 0, 2, -1, 1, Q("7.335651 mm")))
pocket3 = body.newObject("PartDesign::Pocket", "Pocket002")
pocket3.Profile = sketch15
pocket3.Length = 6.5
doc.recompute()

fillet4 = body.newObject("PartDesign::Fillet", "Fillet003")
fillet4.Base = (pocket3, edges_at(pocket3, [(-16.4, 10.2, 2.27), (16.4, 10.2, 2.27)]))
fillet4.Radius = 3

# Sketch on XZ plane
sketch16 = body.newObject("Sketcher::SketchObject", "Sketch015")
sketch16.AttachmentSupport = (doc.getObject("XZ_Plane"), [""])
sketch16.MapMode = "FlatFace"
sketch16.AttachmentOffset = App.Placement(Vector(0, 0, -10.2), App.Rotation())
sketch16.addGeometry(Part.LineSegment(Vector(-16.4, -3, 0), Vector(-16.4, 6, 0)), False)
sketch16.addGeometry(Part.LineSegment(Vector(-16.4, 6, 0), Vector(-13.4, 6, 0)), False)
sketch16.addGeometry(Part.LineSegment(Vector(-13.4, 6, 0), Vector(-13.4, -3, 0)), False)
sketch16.addGeometry(Part.LineSegment(Vector(-13.4, -3, 0), Vector(-16.4, -3, 0)), False)
sketch16.addGeometry(Part.LineSegment(Vector(13.4, -3, 0), Vector(13.4, 6, 0)), False)
sketch16.addGeometry(Part.LineSegment(Vector(13.4, 6, 0), Vector(16.4, 6, 0)), False)
sketch16.addGeometry(Part.LineSegment(Vector(16.4, 6, 0), Vector(16.4, -3, 0)), False)
sketch16.addGeometry(Part.LineSegment(Vector(16.4, -3, 0), Vector(13.4, -3, 0)), False)
sketch16.addConstraint(Sketcher.Constraint("Coincident", 0, 2, 1, 1))
sketch16.addConstraint(Sketcher.Constraint("Coincident", 1, 2, 2, 1))
sketch16.addConstraint(Sketcher.Constraint("Coincident", 2, 2, 3, 1))
sketch16.addConstraint(Sketcher.Constraint("Coincident", 3, 2, 0, 1))
sketch16.addConstraint(Sketcher.Constraint("Coincident", 4, 2, 5, 1))
sketch16.addConstraint(Sketcher.Constraint("Coincident", 5, 2, 6, 1))
sketch16.addConstraint(Sketcher.Constraint("Coincident", 6, 2, 7, 1))
sketch16.addConstraint(Sketcher.Constraint("Coincident", 7, 2, 4, 1))
sketch16.addConstraint(Sketcher.Constraint("Vertical", 0))
sketch16.addConstraint(Sketcher.Constraint("Horizontal", 1))
sketch16.addConstraint(Sketcher.Constraint("Vertical", 2))
sketch16.addConstraint(Sketcher.Constraint("Horizontal", 3))
sketch16.addConstraint(Sketcher.Constraint("Vertical", 4))
sketch16.addConstraint(Sketcher.Constraint("Horizontal", 5))
sketch16.addConstraint(Sketcher.Constraint("Vertical", 6))
sketch16.addConstraint(Sketcher.Constraint("Horizontal", 7))
sketch16.addConstraint(Sketcher.Constraint("Symmetric", 1, 2, 4, 2, -2))
sketch16.addConstraint(Sketcher.Constraint("Symmetric", 3, 2, 6, 2, -2))
sketch16.addConstraint(Sketcher.Constraint("DistanceX", 1, 1, 1, 2, Q("3 mm")))
sketch16.addConstraint(Sketcher.Constraint("DistanceY", 0, 1, 0, 2, Q("9 mm")))
sketch16.addConstraint(Sketcher.Constraint("DistanceX", 0, 2, -1, 1, Q("16.4 mm")))
sketch16.addConstraint(Sketcher.Constraint("DistanceY", -1, 1, 0, 2, Q("6.02 mm")))
pocket4 = body.newObject("PartDesign::Pocket", "Pocket003")
pocket4.Profile = sketch16
pocket4.Length = 8
pocket4.Reversed = True
doc.recompute()

fillet5 = body.newObject("PartDesign::Fillet", "Fillet004")
fillet5.Base = (pocket4, edges_at(pocket4, [
    (0, 0, -2.98),
    (-16.107, 0.293, -2.98),
    (16.107, 0.293, -2.98),
    (0, 10.2, -2.98),
    (16.4, 1.6, -2.98),
    (-16.4, 1.6, -2.98),
    (-14.9, 2.2, -2.98),
    (-13.4, 6.2, -2.98),
    (14.9, 2.2, -2.98),
    (13.4, 6.2, -2.98),
]))
fillet5.Radius = 0.5

doc.recompute()
